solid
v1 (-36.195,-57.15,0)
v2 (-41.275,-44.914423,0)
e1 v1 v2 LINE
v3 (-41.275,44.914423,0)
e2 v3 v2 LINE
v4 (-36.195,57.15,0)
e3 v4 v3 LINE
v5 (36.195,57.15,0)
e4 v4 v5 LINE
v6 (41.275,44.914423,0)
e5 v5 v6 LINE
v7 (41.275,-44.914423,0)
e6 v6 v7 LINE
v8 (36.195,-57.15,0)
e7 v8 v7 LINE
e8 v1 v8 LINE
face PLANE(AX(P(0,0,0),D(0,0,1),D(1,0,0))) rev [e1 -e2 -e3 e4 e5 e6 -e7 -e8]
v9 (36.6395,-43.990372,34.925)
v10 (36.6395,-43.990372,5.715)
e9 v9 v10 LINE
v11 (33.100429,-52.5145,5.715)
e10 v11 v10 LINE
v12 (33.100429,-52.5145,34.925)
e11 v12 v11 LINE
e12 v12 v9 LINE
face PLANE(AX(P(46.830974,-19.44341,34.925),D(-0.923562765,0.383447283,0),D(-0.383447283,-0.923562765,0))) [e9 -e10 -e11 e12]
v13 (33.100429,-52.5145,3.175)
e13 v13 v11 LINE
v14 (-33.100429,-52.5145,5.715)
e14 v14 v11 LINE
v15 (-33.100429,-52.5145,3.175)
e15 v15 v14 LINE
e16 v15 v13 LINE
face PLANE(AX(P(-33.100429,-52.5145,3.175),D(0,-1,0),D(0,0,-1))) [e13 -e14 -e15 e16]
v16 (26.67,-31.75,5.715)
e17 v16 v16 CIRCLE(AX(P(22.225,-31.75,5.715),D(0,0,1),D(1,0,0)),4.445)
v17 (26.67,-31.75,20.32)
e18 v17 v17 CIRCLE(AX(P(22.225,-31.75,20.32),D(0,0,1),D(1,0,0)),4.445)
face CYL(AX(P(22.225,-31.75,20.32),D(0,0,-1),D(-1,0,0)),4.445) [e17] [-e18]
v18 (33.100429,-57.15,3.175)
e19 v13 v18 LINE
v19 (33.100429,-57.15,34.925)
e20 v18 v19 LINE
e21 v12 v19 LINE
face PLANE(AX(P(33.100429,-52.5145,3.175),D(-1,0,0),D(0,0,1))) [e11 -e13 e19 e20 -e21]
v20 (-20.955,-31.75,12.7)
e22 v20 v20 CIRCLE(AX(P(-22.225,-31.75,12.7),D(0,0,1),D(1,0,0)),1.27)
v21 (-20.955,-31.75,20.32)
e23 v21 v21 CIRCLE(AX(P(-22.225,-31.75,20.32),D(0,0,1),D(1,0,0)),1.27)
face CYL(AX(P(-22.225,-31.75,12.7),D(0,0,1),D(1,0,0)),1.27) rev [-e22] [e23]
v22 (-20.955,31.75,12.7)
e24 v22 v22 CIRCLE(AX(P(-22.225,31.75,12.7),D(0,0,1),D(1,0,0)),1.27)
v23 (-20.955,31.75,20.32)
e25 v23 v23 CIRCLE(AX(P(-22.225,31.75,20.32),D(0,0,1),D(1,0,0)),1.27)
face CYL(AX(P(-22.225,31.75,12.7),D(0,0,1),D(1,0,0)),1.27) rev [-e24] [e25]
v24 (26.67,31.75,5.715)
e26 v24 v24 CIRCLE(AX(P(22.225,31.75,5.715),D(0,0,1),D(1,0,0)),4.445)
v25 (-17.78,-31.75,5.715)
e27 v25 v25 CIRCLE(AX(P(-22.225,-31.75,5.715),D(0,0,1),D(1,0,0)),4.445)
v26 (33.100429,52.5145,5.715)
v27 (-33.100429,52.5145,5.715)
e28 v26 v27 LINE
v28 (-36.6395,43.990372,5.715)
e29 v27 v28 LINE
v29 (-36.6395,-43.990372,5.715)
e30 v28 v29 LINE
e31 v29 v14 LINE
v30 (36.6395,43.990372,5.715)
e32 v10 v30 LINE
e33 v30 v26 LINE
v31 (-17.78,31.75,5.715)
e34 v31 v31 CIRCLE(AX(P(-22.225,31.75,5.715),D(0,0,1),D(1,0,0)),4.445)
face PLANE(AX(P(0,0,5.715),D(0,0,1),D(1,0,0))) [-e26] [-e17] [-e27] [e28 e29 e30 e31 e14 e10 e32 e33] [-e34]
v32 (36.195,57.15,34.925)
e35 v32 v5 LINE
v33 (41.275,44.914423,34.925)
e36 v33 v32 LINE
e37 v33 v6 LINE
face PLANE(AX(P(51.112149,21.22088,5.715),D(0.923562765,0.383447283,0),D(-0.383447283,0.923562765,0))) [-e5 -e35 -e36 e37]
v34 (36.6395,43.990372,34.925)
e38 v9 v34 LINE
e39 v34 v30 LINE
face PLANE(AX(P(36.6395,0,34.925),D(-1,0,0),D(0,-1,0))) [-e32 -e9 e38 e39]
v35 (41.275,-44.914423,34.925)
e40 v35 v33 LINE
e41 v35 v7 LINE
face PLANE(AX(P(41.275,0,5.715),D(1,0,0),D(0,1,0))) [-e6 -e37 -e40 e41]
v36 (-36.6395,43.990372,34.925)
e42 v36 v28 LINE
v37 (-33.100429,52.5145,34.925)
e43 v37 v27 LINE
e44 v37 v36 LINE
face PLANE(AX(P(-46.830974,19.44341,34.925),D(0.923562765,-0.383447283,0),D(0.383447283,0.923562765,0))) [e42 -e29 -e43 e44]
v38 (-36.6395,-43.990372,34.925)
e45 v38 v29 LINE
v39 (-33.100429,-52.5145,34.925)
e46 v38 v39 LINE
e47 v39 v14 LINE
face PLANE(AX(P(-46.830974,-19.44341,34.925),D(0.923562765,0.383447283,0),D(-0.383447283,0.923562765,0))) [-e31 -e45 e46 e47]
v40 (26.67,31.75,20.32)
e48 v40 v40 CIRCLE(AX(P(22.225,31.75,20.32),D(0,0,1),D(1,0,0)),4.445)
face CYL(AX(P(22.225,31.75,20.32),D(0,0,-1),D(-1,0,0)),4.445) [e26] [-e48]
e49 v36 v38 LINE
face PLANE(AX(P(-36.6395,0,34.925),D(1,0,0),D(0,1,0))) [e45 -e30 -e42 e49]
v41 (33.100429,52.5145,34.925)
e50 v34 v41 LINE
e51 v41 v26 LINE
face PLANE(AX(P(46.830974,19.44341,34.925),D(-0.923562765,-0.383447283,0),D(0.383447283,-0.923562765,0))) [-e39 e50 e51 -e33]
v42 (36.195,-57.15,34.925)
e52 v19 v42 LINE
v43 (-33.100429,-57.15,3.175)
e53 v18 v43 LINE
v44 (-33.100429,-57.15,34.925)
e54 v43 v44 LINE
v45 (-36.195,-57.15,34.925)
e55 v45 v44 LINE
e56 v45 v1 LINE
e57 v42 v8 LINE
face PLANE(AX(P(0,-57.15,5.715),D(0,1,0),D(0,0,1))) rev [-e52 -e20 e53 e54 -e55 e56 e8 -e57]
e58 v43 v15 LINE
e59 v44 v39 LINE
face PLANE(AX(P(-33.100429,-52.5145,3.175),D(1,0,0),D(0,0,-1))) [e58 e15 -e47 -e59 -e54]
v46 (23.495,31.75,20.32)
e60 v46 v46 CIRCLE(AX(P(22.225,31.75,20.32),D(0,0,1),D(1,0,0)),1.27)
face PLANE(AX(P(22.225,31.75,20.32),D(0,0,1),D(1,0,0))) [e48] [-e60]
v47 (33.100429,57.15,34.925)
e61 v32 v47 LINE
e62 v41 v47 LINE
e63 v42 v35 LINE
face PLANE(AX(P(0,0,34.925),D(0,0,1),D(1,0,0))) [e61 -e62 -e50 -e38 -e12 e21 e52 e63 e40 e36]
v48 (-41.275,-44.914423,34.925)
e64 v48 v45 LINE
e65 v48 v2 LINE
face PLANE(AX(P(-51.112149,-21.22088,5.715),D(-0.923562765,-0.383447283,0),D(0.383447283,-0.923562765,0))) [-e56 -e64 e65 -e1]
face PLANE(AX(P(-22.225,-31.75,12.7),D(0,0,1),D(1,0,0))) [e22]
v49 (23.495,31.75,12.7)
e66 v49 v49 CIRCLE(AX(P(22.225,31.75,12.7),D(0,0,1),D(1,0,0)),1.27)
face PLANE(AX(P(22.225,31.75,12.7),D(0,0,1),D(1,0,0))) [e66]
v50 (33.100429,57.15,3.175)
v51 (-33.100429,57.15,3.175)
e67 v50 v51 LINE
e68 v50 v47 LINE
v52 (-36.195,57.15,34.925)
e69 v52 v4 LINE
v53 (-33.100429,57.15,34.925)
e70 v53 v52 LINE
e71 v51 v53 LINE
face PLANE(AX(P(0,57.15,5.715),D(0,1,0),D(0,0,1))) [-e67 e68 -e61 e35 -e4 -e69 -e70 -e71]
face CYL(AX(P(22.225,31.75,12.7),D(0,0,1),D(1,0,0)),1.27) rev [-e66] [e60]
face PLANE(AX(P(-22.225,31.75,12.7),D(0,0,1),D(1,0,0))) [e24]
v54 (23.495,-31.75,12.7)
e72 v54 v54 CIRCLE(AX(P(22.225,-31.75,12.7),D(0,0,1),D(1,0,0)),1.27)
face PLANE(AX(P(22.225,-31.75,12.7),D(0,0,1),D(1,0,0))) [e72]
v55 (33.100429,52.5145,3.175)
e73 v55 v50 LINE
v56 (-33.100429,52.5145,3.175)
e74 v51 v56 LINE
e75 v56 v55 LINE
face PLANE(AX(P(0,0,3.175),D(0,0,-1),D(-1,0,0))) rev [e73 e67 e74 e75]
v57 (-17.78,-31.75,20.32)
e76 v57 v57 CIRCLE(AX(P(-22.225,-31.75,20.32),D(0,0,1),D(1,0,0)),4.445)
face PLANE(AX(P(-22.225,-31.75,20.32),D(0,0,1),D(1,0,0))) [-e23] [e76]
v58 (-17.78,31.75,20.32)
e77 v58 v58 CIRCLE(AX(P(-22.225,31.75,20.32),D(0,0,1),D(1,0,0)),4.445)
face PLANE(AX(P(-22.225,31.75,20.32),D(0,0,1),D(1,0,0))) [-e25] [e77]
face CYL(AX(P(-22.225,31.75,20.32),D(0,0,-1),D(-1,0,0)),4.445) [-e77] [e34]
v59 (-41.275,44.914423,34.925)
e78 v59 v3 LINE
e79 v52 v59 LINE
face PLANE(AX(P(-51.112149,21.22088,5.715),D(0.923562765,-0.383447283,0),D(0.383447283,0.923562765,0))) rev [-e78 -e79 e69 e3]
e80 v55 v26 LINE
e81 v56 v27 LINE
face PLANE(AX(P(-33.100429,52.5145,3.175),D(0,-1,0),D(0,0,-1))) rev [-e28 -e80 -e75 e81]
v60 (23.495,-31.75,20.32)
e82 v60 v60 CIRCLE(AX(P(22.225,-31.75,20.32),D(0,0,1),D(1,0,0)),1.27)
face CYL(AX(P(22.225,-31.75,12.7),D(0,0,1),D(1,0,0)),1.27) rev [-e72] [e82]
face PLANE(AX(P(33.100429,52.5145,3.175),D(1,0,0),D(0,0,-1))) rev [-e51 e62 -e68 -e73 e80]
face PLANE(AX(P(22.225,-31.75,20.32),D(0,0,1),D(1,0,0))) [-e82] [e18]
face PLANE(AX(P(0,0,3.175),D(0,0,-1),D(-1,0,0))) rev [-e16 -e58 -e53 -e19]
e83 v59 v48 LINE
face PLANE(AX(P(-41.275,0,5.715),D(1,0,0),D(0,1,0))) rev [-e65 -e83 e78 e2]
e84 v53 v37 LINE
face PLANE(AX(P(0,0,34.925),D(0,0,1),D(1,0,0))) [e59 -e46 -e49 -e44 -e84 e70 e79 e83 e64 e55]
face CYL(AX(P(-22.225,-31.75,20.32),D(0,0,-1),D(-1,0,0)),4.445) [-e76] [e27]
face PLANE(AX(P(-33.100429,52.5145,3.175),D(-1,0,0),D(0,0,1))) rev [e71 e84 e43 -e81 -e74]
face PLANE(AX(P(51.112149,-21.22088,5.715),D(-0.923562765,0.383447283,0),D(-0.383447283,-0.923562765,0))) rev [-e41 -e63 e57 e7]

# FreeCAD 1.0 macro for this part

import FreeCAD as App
import Part
import Sketcher
Q = App.Units.Quantity

doc = App.newDocument("Part")
body = doc.addObject("PartDesign::Body", "Body")

sketch1 = body.newObject("Sketcher::SketchObject", "Sketch")
sketch1.AttachmentSupport = (doc.getObject("XY_Plane"), [""])
sketch1.MapMode = "FlatFace"
sketch1.addGeometry(Part.LineSegment(App.Vector(41.275, 44.914423, 0), App.Vector(36.195, 57.15, 0)), False)
sketch1.addGeometry(Part.LineSegment(App.Vector(36.195, 57.15, 0), App.Vector(-36.195, 57.15, 0)), False)
sketch1.addGeometry(Part.LineSegment(App.Vector(-36.195, 57.15, 0), App.Vector(-41.275, 44.914423, 0)), False)
sketch1.addGeometry(Part.LineSegment(App.Vector(-41.275, 44.914423, 0), App.Vector(-41.275, -44.914423, 0)), False)
sketch1.addGeometry(Part.LineSegment(App.Vector(-41.275, -44.914423, 0), App.Vector(-36.195, -57.15, 0)), False)
sketch1.addGeometry(Part.LineSegment(App.Vector(-36.195, -57.15, 0), App.Vector(36.195, -57.15, 0)), False)
sketch1.addGeometry(Part.LineSegment(App.Vector(36.195, -57.15, 0), App.Vector(41.275, -44.914423, 0)), False)
sketch1.addGeometry(Part.LineSegment(App.Vector(41.275, -44.914423, 0), App.Vector(41.275, 44.914423, 0)), False)
sketch1.addConstraint(Sketcher.Constraint("Coincident", 0, 2, 1, 1))
sketch1.addConstraint(Sketcher.Constraint("Coincident", 1, 2, 2, 1))
sketch1.addConstraint(Sketcher.Constraint("Coincident", 2, 2, 3, 1))
sketch1.addConstraint(Sketcher.Constraint("Coincident", 3, 2, 4, 1))
sketch1.addConstraint(Sketcher.Constraint("Coincident", 4, 2, 5, 1))
sketch1.addConstraint(Sketcher.Constraint("Coincident", 5, 2, 6, 1))
sketch1.addConstraint(Sketcher.Constraint("Coincident", 6, 2, 7, 1))
sketch1.addConstraint(Sketcher.Constraint("Coincident", 7, 2, 0, 1))
sketch1.addConstraint(Sketcher.Constraint("Horizontal", 1))
sketch1.addConstraint(Sketcher.Constraint("Vertical", 3))
sketch1.addConstraint(Sketcher.Constraint("Horizontal", 5))
sketch1.addConstraint(Sketcher.Constraint("Vertical", 7))
sketch1.addConstraint(Sketcher.Constraint("Symmetric", 0, 2, 4, 2, -1, 1))
sketch1.addConstraint(Sketcher.Constraint("Symmetric", 2, 2, 6, 2, -1, 1))
sketch1.addConstraint(Sketcher.Constraint("Parallel", 0, 4))
sketch1.addConstraint(Sketcher.Constraint("Parallel", 2, 6))
sketch1.addConstraint(Sketcher.Constraint("Horizontal", 3, 2, 6, 2))
sketch1.addConstraint(Sketcher.Constraint("Vertical", 1, 2, 4, 2))
sketch1.addConstraint(Sketcher.Constraint("DistanceX", 1, 2, 1, 1, Q("2.85 in")))
sketch1.addConstraint(Sketcher.Constraint("DistanceX", 2, 2, 1, 2, Q("0.2 in")))
sketch1.addConstraint(Sketcher.Constraint("DistanceY", 4, 2, 1, 2, Q("4.5 in")))
sketch1.addConstraint(Sketcher.Constraint("DistanceY", 3, 2, 3, 1, Q("89.828846 mm")))
pad1 = body.newObject("PartDesign::Pad", "Pad")
pad1.Profile = sketch1
pad1.Length = Q("0.225 in")

sketch2 = body.newObject("Sketcher::SketchObject", "Sketch001")
sketch2.AttachmentSupport = (doc.getObject("XY_Plane"), [""])
sketch2.MapMode = "FlatFace"
sketch2.AttachmentOffset = App.Placement(App.Vector(0, 0, 0.225 * 25.4), App.Rotation())
sketch2.addGeometry(Part.LineSegment(App.Vector(-41.275, 44.914423, 0), App.Vector(-41.275, -44.914423, 0)), False)
sketch2.addGeometry(Part.LineSegment(App.Vector(-41.275, -44.914423, 0), App.Vector(-36.195, -57.15, 0)), False)
sketch2.addGeometry(Part.LineSegment(App.Vector(-36.195, -57.15, 0), App.Vector(36.195, -57.15, 0)), False)
sketch2.addGeometry(Part.LineSegment(App.Vector(36.195, -57.15, 0), App.Vector(41.275, -44.914423, 0)), False)
sketch2.addGeometry(Part.LineSegment(App.Vector(41.275, -44.914423, 0), App.Vector(41.275, 44.914423, 0)), False)
sketch2.addGeometry(Part.LineSegment(App.Vector(41.275, 44.914423, 0), App.Vector(36.195, 57.15, 0)), False)
sketch2.addGeometry(Part.LineSegment(App.Vector(36.195, 57.15, 0), App.Vector(-36.195, 57.15, 0)), False)
sketch2.addGeometry(Part.LineSegment(App.Vector(-36.195, 57.15, 0), App.Vector(-41.275, 44.914423, 0)), False)
sketch2.addGeometry(Part.LineSegment(App.Vector(-36.6395, 43.990372, 0), App.Vector(-33.100429, 52.5145, 0)), False)
sketch2.addGeometry(Part.LineSegment(App.Vector(-33.100429, 52.5145, 0), App.Vector(33.100429, 52.5145, 0)), False)
sketch2.addGeometry(Part.LineSegment(App.Vector(33.100429, 52.5145, 0), App.Vector(36.6395, 43.990372, 0)), False)
sketch2.addGeometry(Part.LineSegment(App.Vector(36.6395, 43.990372, 0), App.Vector(36.6395, -43.990372, 0)), False)
sketch2.addGeometry(Part.LineSegment(App.Vector(36.6395, -43.990372, 0), App.Vector(33.100429, -52.5145, 0)), False)
sketch2.addGeometry(Part.LineSegment(App.Vector(33.100429, -52.5145, 0), App.Vector(-33.100429, -52.5145, 0)), False)
sketch2.addGeometry(Part.LineSegment(App.Vector(-33.100429, -52.5145, 0), App.Vector(-36.6395, -43.990372, 0)), False)
sketch2.addGeometry(Part.LineSegment(App.Vector(-36.6395, -43.990372, 0), App.Vector(-36.6395, 43.990372, 0)), False)
sketch2.addConstraint(Sketcher.Constraint("Coincident", 0, 2, 1, 1))
sketch2.addConstraint(Sketcher.Constraint("Coincident", 1, 2, 2, 1))
sketch2.addConstraint(Sketcher.Constraint("Coincident", 2, 2, 3, 1))
sketch2.addConstraint(Sketcher.Constraint("Coincident", 3, 2, 4, 1))
sketch2.addConstraint(Sketcher.Constraint("Coincident", 4, 2, 5, 1))
sketch2.addConstraint(Sketcher.Constraint("Coincident", 5, 2, 6, 1))
sketch2.addConstraint(Sketcher.Constraint("Coincident", 6, 2, 7, 1))
sketch2.addConstraint(Sketcher.Constraint("Coincident", 7, 2, 0, 1))
sketch2.addConstraint(Sketcher.Constraint("Coincident", 8, 2, 9, 1))
sketch2.addConstraint(Sketcher.Constraint("Coincident", 9, 2, 10, 1))
sketch2.addConstraint(Sketcher.Constraint("Coincident", 10, 2, 11, 1))
sketch2.addConstraint(Sketcher.Constraint("Coincident", 11, 2, 12, 1))
sketch2.addConstraint(Sketcher.Constraint("Coincident", 12, 2, 13, 1))
sketch2.addConstraint(Sketcher.Constraint("Coincident", 13, 2, 14, 1))
sketch2.addConstraint(Sketcher.Constraint("Coincident", 14, 2, 15, 1))
sketch2.addConstraint(Sketcher.Constraint("Coincident", 15, 2, 8, 1))
sketch2.addConstraint(Sketcher.Constraint("Vertical", 0))
sketch2.addConstraint(Sketcher.Constraint("Horizontal", 2))
sketch2.addConstraint(Sketcher.Constraint("Vertical", 4))
sketch2.addConstraint(Sketcher.Constraint("Horizontal", 6))
sketch2.addConstraint(Sketcher.Constraint("Horizontal", 9))
sketch2.addConstraint(Sketcher.Constraint("Vertical", 11))
sketch2.addConstraint(Sketcher.Constraint("Horizontal", 13))
sketch2.addConstraint(Sketcher.Constraint("Vertical", 15))
sketch2.addConstraint(Sketcher.Constraint("Symmetric", 0, 2, 4, 2, -1, 1))
sketch2.addConstraint(Sketcher.Constraint("Symmetric", 1, 2, 5, 2, -1, 1))
sketch2.addConstraint(Sketcher.Constraint("Symmetric", 8, 2, 12, 2, -1, 1))
sketch2.addConstraint(Sketcher.Constraint("Symmetric", 10, 2, 14, 2, -1, 1))
sketch2.addConstraint(Sketcher.Constraint("Parallel", 3, 7))
sketch2.addConstraint(Sketcher.Constraint("Parallel", 7, 8))
sketch2.addConstraint(Sketcher.Constraint("Parallel", 5, 10))
sketch2.addConstraint(Sketcher.Constraint("Parallel", 8, 12))
sketch2.addConstraint(Sketcher.Constraint("Parallel", 10, 14))
sketch2.addConstraint(Sketcher.Constraint("Horizontal", 0, 2, 3, 2))
sketch2.addConstraint(Sketcher.Constraint("Horizontal", 4, 2, 7, 2))
sketch2.addConstraint(Sketcher.Constraint("Horizontal", 11, 2, 14, 2))
sketch2.addConstraint(Sketcher.Constraint("Vertical", 2, 2, 5, 2))
sketch2.addConstraint(Sketcher.Constraint("DistanceX", 2, 1, 2, 2, Q("2.85 in")))
sketch2.addConstraint(Sketcher.Constraint("DistanceX", 0, 2, 1, 2, Q("0.2 in")))
sketch2.addConstraint(Sketcher.Constraint("DistanceY", 2, 2, 5, 2, Q("4.5 in")))
sketch2.addConstraint(Sketcher.Constraint("DistanceX", 14, 2, 11, 2, Q("2.885 in")))
sketch2.addConstraint(Sketcher.Constraint("DistanceY", -1, 1, 8, 2, Q("2.0675 in")))
sketch2.addConstraint(Sketcher.Constraint("DistanceX", 9, 1, 9, 2, Q("66.200859 mm")))
sketch2.addConstraint(Sketcher.Constraint("DistanceY", 0, 2, 0, 1, Q("89.828846 mm")))
pad2 = body.newObject("PartDesign::Pad", "Pad001")
pad2.Profile = sketch2
pad2.Length = Q("1.15 in")

sketch3 = body.newObject("Sketcher::SketchObject", "Sketch002")
sketch3.AttachmentSupport = (doc.getObject("XY_Plane"), [""])
sketch3.MapMode = "FlatFace"
sketch3.AttachmentOffset = App.Placement(App.Vector(0, 0, 1.375 * 25.4), App.Rotation())
sketch3.addGeometry(Part.LineSegment(App.Vector(-33.100429, 57.15, 0), App.Vector(-33.100429, 52.5145, 0)), False)
sketch3.addGeometry(Part.LineSegment(App.Vector(-33.100429, 52.5145, 0), App.Vector(33.100429, 52.5145, 0)), False)
sketch3.addGeometry(Part.LineSegment(App.Vector(33.100429, 52.5145, 0), App.Vector(33.100429, 57.15, 0)), False)
sketch3.addGeometry(Part.LineSegment(App.Vector(33.100429, 57.15, 0), App.Vector(-33.100429, 57.15, 0)), False)
sketch3.addConstraint(Sketcher.Constraint("Coincident", 0, 2, 1, 1))
sketch3.addConstraint(Sketcher.Constraint("Coincident", 1, 2, 2, 1))
sketch3.addConstraint(Sketcher.Constraint("Coincident", 2, 2, 3, 1))
sketch3.addConstraint(Sketcher.Constraint("Coincident", 3, 2, 0, 1))
sketch3.addConstraint(Sketcher.Constraint("Vertical", 0))
sketch3.addConstraint(Sketcher.Constraint("Horizontal", 1))
sketch3.addConstraint(Sketcher.Constraint("Vertical", 2))
sketch3.addConstraint(Sketcher.Constraint("Horizontal", 3))
sketch3.addConstraint(Sketcher.Constraint("DistanceY", -1, 1, 2, 2, Q("2.25 in")))
sketch3.addConstraint(Sketcher.Constraint("DistanceY", 0, 2, 0, 1, Q("0.1825 in")))
sketch3.addConstraint(Sketcher.Constraint("DistanceX", 1, 1, 1, 2, Q("66.200859 mm")))
sketch3.addConstraint(Sketcher.Constraint("DistanceX", 0, 2, -1, 1, Q("33.100429 mm")))
pocket1 = body.newObject("PartDesign::Pocket", "Pocket")
pocket1.Profile = sketch3
pocket1.Length = Q("1.25 in")
doc.recompute()

mirrored = body.newObject("PartDesign::Mirrored", "Mirrored")
mirrored.Originals = [pocket1]
mirrored.MirrorPlane = (doc.getObject("XZ_Plane"), [""])
body.Tip = mirrored

sketch4 = body.newObject("Sketcher::SketchObject", "Sketch003")
sketch4.AttachmentSupport = (doc.getObject("XY_Plane"), [""])
sketch4.MapMode = "FlatFace"
sketch4.AttachmentOffset = App.Placement(App.Vector(0, 0, 0.225 * 25.4), App.Rotation())
sketch4.addGeometry(Part.Circle(App.Vector(22.225, -31.75, 0), App.Vector(0, 0, 1), 4.445), False)
sketch4.addGeometry(Part.Circle(App.Vector(-22.225, -31.75, 0), App.Vector(0, 0, 1), 4.445), False)
sketch4.addGeometry(Part.Circle(App.Vector(22.225, 31.75, 0), App.Vector(0, 0, 1), 4.445), False)
sketch4.addGeometry(Part.Circle(App.Vector(-22.225, 31.75, 0), App.Vector(0, 0, 1), 4.445), False)
sketch4.addConstraint(Sketcher.Constraint("Equal", 0, 1))
sketch4.addConstraint(Sketcher.Constraint("Equal", 1, 2))
sketch4.addConstraint(Sketcher.Constraint("Equal", 2, 3))
sketch4.addConstraint(Sketcher.Constraint("Symmetric", 1, 3, 2, 3, -1, 1))
sketch4.addConstraint(Sketcher.Constraint("Symmetric", 0, 3, 3, 3, -1, 1))
sketch4.addConstraint(Sketcher.Constraint("Symmetric", 0, 3, 1, 3, -2))
sketch4.addConstraint(Sketcher.Constraint("Diameter", 0, Q("0.35 in")))
sketch4.addConstraint(Sketcher.Constraint("DistanceY", 0, 3, 2, 3, Q("2.5 in")))
sketch4.addConstraint(Sketcher.Constraint("DistanceX", 1, 3, 0, 3, Q("1.75 in")))
pad3 = body.newObject("PartDesign::Pad", "Pad002")
pad3.Profile = sketch4
pad3.Length = Q("0.575 in")

sketch5 = body.newObject("Sketcher::SketchObject", "Sketch004")
sketch5.AttachmentSupport = (doc.getObject("XY_Plane"), [""])
sketch5.MapMode = "FlatFace"
sketch5.AttachmentOffset = App.Placement(App.Vector(0, 0, 0.8 * 25.4), App.Rotation())
sketch5.addGeometry(Part.Circle(App.Vector(-22.225, 31.75, 0), App.Vector(0, 0, 1), 1.27), False)
sketch5.addGeometry(Part.Circle(App.Vector(22.225, 31.75, 0), App.Vector(0, 0, 1), 1.27), False)
sketch5.addGeometry(Part.Circle(App.Vector(22.225, -31.75, 0), App.Vector(0, 0, 1), 1.27), False)
sketch5.addGeometry(Part.Circle(App.Vector(-22.225, -31.75, 0), App.Vector(0, 0, 1), 1.27), False)
sketch5.addConstraint(Sketcher.Constraint("Equal", 0, 1))
sketch5.addConstraint(Sketcher.Constraint("Equal", 1, 2))
sketch5.addConstraint(Sketcher.Constraint("Equal", 2, 3))
sketch5.addConstraint(Sketcher.Constraint("Symmetric", 0, 3, 2, 3, -1, 1))
sketch5.addConstraint(Sketcher.Constraint("Symmetric", 1, 3, 3, 3, -1, 1))
sketch5.addConstraint(Sketcher.Constraint("Symmetric", 0, 3, 1, 3, -2))
sketch5.addConstraint(Sketcher.Constraint("Diameter", 0, Q("0.1 in")))
sketch5.addConstraint(Sketcher.Constraint("DistanceY", 2, 3, 1, 3, Q("2.5 in")))
sketch5.addConstraint(Sketcher.Constraint("DistanceX", 0, 3, 1, 3, Q("1.75 in")))
pocket2 = body.newObject("PartDesign::Pocket", "Pocket001")
pocket2.Profile = sketch5
pocket2.Length = Q("0.3 in")

doc.recompute()
